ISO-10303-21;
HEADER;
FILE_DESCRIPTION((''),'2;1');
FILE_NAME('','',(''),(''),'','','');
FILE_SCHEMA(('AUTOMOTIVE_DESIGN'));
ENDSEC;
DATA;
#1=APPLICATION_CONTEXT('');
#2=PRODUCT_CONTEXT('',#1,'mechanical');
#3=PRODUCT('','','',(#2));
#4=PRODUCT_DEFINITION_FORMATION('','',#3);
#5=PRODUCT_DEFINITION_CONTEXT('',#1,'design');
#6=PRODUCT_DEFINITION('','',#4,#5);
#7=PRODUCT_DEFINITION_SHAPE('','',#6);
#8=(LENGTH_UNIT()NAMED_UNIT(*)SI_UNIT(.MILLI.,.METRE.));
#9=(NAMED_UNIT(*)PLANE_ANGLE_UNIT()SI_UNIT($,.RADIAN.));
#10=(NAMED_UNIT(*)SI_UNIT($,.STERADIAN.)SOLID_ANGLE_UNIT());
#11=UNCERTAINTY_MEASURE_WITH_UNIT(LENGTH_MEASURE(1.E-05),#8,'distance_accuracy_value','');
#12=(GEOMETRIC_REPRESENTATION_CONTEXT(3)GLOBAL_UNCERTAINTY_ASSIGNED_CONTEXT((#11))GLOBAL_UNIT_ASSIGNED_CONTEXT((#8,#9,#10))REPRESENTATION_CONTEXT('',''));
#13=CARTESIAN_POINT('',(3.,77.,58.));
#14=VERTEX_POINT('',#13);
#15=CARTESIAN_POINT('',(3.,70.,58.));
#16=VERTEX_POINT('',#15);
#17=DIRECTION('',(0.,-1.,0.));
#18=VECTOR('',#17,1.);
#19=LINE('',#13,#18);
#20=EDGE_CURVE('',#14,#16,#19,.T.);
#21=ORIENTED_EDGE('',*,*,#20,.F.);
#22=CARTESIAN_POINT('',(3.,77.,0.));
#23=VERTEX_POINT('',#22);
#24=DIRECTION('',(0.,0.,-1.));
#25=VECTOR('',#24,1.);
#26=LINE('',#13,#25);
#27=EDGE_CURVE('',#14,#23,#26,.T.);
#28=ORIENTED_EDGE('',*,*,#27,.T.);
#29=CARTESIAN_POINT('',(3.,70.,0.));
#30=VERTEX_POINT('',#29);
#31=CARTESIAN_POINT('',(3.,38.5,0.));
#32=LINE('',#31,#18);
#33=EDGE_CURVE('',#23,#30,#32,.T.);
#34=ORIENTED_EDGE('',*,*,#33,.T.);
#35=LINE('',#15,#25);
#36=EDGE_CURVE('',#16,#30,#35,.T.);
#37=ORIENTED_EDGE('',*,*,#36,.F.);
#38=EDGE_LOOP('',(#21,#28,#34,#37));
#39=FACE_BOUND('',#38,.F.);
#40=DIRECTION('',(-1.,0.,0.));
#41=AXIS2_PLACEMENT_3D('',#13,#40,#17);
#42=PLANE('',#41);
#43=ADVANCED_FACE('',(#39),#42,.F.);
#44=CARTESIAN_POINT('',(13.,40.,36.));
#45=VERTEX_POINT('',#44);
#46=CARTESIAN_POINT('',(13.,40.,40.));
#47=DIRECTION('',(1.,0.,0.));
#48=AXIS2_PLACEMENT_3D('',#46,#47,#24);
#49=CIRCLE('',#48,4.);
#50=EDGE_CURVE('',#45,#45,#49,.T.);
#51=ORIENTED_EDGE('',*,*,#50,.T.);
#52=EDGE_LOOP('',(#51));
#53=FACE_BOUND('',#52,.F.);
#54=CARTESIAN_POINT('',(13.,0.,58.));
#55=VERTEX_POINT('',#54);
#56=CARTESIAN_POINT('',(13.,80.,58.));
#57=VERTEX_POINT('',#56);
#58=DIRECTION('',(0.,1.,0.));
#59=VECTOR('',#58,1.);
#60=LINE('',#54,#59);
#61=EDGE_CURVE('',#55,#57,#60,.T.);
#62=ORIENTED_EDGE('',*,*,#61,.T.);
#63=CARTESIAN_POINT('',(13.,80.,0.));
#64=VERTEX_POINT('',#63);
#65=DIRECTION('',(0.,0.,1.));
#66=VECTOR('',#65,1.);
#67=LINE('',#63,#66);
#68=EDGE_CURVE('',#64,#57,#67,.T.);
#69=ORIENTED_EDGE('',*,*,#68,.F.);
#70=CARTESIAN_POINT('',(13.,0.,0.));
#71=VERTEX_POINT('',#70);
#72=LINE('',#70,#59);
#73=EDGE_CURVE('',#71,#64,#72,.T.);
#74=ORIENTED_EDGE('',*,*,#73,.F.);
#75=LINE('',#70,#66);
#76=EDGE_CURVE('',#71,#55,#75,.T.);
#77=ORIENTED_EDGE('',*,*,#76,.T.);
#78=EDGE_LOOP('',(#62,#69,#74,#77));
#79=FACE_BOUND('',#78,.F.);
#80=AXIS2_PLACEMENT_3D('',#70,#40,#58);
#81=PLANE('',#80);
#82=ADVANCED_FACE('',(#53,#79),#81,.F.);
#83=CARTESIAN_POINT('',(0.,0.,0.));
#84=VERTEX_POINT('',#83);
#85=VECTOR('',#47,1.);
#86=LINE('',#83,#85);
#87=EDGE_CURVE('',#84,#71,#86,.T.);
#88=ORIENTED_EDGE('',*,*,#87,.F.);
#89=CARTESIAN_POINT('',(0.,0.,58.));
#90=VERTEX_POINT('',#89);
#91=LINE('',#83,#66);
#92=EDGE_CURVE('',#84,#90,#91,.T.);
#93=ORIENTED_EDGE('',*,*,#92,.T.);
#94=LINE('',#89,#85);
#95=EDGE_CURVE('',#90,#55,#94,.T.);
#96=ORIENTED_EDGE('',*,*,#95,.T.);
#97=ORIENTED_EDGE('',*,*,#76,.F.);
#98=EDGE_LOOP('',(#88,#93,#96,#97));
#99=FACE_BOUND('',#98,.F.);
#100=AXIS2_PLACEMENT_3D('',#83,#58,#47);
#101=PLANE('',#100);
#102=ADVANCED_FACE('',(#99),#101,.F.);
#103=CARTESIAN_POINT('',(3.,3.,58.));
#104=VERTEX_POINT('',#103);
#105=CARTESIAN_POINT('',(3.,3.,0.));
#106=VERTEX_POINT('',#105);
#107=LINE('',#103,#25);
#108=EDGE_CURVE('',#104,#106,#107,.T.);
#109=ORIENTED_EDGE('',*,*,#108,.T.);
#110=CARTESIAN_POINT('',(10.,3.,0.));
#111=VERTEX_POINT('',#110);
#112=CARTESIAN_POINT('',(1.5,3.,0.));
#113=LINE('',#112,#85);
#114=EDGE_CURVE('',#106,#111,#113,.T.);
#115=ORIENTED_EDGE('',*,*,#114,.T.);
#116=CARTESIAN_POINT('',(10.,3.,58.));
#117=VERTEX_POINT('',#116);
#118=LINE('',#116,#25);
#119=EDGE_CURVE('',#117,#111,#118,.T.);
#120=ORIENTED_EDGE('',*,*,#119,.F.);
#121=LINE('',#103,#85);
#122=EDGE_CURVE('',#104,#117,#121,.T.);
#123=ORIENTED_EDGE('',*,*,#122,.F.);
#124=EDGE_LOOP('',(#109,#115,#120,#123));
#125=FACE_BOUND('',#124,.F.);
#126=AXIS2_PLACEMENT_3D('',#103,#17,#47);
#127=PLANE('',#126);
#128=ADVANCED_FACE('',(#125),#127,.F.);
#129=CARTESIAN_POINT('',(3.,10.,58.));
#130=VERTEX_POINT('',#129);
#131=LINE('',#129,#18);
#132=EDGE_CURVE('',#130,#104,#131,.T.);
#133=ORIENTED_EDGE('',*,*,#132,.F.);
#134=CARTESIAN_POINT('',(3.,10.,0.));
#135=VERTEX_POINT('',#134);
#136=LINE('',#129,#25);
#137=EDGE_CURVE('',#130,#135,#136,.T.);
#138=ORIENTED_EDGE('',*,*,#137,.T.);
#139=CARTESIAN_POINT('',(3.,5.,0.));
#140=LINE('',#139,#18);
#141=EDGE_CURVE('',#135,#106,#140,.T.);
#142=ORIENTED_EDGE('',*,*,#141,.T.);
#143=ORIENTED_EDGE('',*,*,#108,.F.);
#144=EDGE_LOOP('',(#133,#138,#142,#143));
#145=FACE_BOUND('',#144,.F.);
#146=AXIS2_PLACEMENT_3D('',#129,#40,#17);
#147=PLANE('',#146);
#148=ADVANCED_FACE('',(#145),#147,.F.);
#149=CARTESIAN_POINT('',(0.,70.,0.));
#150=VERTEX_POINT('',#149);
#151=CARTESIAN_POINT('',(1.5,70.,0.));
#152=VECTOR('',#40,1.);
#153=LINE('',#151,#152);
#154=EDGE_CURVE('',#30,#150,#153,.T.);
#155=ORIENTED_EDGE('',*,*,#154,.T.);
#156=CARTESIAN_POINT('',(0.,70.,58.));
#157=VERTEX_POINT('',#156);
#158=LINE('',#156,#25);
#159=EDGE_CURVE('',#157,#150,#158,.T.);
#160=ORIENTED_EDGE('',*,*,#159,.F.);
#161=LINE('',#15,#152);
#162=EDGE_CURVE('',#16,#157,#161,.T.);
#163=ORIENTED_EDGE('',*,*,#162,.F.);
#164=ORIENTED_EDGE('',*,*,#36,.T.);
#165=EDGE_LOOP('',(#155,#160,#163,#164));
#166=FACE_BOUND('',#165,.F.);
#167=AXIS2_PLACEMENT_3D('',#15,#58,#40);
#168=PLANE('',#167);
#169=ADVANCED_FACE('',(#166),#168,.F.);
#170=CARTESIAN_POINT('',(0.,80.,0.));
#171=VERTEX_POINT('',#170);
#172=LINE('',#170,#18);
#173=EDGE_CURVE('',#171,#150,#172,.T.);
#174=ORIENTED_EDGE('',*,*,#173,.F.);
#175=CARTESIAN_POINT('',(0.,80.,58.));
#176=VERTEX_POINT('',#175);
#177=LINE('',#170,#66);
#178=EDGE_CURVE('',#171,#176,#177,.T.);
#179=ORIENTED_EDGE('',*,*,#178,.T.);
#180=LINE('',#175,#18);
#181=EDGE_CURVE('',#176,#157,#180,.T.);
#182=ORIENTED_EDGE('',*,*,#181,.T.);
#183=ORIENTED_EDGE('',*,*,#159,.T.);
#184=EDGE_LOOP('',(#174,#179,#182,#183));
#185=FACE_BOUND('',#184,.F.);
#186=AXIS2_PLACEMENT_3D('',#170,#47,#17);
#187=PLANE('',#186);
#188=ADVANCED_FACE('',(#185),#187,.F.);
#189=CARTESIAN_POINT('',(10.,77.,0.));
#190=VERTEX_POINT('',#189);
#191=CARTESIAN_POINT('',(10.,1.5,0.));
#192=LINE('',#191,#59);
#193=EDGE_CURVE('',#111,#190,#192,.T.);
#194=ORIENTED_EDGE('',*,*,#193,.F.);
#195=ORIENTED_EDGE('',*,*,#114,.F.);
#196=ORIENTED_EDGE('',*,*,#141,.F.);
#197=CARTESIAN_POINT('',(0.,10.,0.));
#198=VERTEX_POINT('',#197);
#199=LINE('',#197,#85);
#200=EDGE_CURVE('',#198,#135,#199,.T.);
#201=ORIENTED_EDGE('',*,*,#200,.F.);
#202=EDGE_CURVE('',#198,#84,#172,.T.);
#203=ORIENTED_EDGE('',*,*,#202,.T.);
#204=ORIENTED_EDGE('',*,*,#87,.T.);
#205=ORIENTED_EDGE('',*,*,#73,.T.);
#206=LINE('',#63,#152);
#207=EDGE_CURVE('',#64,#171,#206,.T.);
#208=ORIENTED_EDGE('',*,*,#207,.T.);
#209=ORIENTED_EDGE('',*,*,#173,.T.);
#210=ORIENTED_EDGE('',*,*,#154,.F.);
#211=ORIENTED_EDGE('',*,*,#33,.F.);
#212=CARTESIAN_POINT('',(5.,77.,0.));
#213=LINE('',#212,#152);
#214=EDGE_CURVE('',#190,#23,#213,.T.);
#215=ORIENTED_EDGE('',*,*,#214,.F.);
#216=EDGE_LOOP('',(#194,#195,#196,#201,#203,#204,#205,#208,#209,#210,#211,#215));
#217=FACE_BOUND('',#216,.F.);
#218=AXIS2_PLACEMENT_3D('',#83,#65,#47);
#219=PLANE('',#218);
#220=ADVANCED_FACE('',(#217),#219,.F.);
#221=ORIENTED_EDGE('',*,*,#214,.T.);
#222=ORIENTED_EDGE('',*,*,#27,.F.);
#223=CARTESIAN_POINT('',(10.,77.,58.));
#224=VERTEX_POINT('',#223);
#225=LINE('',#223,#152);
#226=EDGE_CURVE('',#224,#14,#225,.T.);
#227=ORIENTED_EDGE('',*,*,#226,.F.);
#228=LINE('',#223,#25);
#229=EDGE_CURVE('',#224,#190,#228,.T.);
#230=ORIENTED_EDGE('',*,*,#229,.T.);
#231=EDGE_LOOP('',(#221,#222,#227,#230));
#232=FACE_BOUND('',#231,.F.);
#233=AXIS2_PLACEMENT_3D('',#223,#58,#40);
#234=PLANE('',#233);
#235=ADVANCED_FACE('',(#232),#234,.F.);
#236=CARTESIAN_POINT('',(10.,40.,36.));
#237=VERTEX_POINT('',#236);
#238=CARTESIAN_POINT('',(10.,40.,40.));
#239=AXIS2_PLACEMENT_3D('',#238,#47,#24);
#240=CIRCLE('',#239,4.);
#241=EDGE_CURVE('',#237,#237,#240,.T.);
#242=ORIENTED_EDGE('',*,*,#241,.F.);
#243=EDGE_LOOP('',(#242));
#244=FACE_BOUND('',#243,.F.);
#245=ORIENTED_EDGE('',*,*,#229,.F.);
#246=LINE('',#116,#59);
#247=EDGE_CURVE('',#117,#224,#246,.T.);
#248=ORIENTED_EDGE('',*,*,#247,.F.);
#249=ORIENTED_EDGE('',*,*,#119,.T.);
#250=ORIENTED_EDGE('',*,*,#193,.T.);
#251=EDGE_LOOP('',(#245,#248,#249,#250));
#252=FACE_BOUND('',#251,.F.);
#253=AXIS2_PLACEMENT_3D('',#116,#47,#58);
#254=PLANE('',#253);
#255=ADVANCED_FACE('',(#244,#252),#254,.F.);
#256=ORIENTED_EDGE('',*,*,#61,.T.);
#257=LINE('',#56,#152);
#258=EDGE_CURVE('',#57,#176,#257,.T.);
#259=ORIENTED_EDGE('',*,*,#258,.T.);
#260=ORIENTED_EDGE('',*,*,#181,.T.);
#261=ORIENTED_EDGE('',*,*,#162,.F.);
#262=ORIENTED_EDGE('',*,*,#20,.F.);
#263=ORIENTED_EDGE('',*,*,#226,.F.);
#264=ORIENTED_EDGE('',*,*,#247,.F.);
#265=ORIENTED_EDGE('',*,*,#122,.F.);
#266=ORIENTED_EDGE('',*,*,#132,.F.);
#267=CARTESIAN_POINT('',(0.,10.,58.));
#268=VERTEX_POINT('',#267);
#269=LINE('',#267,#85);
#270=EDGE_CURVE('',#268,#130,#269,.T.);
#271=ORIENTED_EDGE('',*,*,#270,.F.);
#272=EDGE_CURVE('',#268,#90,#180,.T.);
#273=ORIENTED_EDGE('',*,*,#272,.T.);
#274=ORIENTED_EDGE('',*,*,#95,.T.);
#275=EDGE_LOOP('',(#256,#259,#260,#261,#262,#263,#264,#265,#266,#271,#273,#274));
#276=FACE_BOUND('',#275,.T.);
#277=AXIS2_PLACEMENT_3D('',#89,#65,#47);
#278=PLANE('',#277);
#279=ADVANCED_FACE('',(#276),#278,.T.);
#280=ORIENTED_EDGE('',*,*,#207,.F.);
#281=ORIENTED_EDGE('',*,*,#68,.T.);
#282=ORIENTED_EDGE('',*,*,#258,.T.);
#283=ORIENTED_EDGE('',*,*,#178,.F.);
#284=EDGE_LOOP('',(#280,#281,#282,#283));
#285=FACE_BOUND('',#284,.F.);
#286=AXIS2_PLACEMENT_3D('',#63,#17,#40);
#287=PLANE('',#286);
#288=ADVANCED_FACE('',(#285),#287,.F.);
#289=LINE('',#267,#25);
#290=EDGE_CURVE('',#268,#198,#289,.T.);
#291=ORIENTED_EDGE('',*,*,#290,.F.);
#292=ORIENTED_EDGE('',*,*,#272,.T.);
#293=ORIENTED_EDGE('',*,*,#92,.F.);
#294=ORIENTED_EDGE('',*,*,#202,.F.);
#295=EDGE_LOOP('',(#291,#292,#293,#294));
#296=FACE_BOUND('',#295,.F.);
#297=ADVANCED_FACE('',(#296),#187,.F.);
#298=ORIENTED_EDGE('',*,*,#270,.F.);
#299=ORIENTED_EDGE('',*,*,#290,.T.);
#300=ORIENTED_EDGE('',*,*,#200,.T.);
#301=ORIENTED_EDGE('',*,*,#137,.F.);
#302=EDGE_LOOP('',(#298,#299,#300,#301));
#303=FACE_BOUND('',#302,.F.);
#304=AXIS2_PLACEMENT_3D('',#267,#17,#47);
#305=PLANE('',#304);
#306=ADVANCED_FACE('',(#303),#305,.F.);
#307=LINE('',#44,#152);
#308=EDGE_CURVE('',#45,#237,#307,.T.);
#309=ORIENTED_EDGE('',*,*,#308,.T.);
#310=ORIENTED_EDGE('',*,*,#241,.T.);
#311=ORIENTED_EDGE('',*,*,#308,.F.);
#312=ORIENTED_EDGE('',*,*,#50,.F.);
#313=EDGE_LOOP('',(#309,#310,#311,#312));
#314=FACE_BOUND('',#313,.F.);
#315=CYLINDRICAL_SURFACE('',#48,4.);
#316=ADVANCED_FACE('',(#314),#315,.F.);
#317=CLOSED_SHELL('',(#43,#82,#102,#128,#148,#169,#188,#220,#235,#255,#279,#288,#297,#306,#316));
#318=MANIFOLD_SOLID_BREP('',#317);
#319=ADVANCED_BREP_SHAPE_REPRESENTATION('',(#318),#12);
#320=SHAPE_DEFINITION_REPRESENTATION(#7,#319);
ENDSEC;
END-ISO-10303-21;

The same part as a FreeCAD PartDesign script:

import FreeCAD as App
import Part
import Sketcher
from FreeCAD import Vector


def add_polygon(sketch, points):
    """Adds a closed chain of lines whose ends are joined by coincident constraints."""
    first, n = sketch.GeometryCount, len(points)
    for a, b in zip(points, points[1:] + points[:1]):
        sketch.addGeometry(Part.LineSegment(App.Vector(*a, 0), App.Vector(*b, 0)), False)
    for i in range(n):
        sketch.addConstraint(Sketcher.Constraint("Coincident", first + i, 2, first + (i + 1) % n, 1))

doc = App.newDocument("Part")
body = doc.addObject("PartDesign::Body", "Body")

# Sketch on XY plane
sketch1 = body.newObject("Sketcher::SketchObject", "Sketch")
sketch1.AttachmentSupport = (doc.getObject("XY_Plane"), [""])
sketch1.MapMode = "FlatFace"
add_polygon(sketch1, [(0, 80), (0, 0), (13, 0), (13, 80)])  # lines 0-3
sketch1.addConstraint(Sketcher.Constraint("Vertical", 0))
sketch1.addConstraint(Sketcher.Constraint("Horizontal", 1))
sketch1.addConstraint(Sketcher.Constraint("Vertical", 2))
sketch1.addConstraint(Sketcher.Constraint("Horizontal", 3))
sketch1.addConstraint(Sketcher.Constraint("Coincident", 0, 2, -1, 1))
sketch1.addConstraint(Sketcher.Constraint("DistanceX", 1, 1, 1, 2, 13.0))
sketch1.addConstraint(Sketcher.Constraint("DistanceY", 0, 2, 0, 1, 80.0))
pad1 = body.newObject("PartDesign::Pad", "Pad")
pad1.Profile = sketch1
pad1.Length = 58

# Sketch on XY plane
sketch2 = body.newObject("Sketcher::SketchObject", "Sketch001")
sketch2.AttachmentSupport = (doc.getObject("XY_Plane"), [""])
sketch2.MapMode = "FlatFace"
sketch2.AttachmentOffset = App.Placement(Vector(0, 0, 58), App.Rotation())
add_polygon(sketch2, [(10, 3), (10, 77), (3, 77), (3, 70), (0, 70), (0, 10), (3, 10), (3, 3)])  # lines 0-7
sketch2.addConstraint(Sketcher.Constraint("Vertical", 0))
sketch2.addConstraint(Sketcher.Constraint("Horizontal", 1))
sketch2.addConstraint(Sketcher.Constraint("Vertical", 2))
sketch2.addConstraint(Sketcher.Constraint("Horizontal", 3))
sketch2.addConstraint(Sketcher.Constraint("Vertical", 4))
sketch2.addConstraint(Sketcher.Constraint("Horizontal", 5))
sketch2.addConstraint(Sketcher.Constraint("Vertical", 6))
sketch2.addConstraint(Sketcher.Constraint("Horizontal", 7))
sketch2.addConstraint(Sketcher.Constraint("PointOnObject", 3, 2, -2))
sketch2.addConstraint(Sketcher.Constraint("Vertical", 2, 2, 5, 2))
sketch2.addConstraint(Sketcher.Constraint("Equal", 7, 2))
sketch2.addConstraint(Sketcher.Constraint("Equal", 2, 6))
sketch2.addConstraint(Sketcher.Constraint("DistanceX", 3, 2, 3, 1, 3.0))
sketch2.addConstraint(Sketcher.Constraint("DistanceX", -1, 1, 0, 2, 10.0))
sketch2.addConstraint(Sketcher.Constraint("DistanceY", -1, 1, 4, 2, 10.0))
sketch2.addConstraint(Sketcher.Constraint("DistanceY", 0, 1, 0, 2, 74.0))
pocket1 = body.newObject("PartDesign::Pocket", "Pocket")
pocket1.Profile = sketch2
pocket1.Type = "ThroughAll"

# Sketch on YZ plane
sketch3 = body.newObject("Sketcher::SketchObject", "Sketch002")
sketch3.AttachmentSupport = (doc.getObject("YZ_Plane"), [""])
sketch3.MapMode = "FlatFace"
sketch3.AttachmentOffset = App.Placement(Vector(0, 0, 13), App.Rotation())
sketch3.addGeometry(Part.Circle(Vector(40, 40, 0), Vector(0, 0, 1), 4), False)
sketch3.addConstraint(Sketcher.Constraint("Diameter", 0, 8.0))
sketch3.addConstraint(Sketcher.Constraint("DistanceX", -1, 1, 0, 3, 40.0))
sketch3.addConstraint(Sketcher.Constraint("DistanceY", -1, 1, 0, 3, 40.0))
pocket2 = body.newObject("PartDesign::Pocket", "Pocket001")
pocket2.Profile = sketch3
pocket2.Type = "ThroughAll"

doc.recompute()
